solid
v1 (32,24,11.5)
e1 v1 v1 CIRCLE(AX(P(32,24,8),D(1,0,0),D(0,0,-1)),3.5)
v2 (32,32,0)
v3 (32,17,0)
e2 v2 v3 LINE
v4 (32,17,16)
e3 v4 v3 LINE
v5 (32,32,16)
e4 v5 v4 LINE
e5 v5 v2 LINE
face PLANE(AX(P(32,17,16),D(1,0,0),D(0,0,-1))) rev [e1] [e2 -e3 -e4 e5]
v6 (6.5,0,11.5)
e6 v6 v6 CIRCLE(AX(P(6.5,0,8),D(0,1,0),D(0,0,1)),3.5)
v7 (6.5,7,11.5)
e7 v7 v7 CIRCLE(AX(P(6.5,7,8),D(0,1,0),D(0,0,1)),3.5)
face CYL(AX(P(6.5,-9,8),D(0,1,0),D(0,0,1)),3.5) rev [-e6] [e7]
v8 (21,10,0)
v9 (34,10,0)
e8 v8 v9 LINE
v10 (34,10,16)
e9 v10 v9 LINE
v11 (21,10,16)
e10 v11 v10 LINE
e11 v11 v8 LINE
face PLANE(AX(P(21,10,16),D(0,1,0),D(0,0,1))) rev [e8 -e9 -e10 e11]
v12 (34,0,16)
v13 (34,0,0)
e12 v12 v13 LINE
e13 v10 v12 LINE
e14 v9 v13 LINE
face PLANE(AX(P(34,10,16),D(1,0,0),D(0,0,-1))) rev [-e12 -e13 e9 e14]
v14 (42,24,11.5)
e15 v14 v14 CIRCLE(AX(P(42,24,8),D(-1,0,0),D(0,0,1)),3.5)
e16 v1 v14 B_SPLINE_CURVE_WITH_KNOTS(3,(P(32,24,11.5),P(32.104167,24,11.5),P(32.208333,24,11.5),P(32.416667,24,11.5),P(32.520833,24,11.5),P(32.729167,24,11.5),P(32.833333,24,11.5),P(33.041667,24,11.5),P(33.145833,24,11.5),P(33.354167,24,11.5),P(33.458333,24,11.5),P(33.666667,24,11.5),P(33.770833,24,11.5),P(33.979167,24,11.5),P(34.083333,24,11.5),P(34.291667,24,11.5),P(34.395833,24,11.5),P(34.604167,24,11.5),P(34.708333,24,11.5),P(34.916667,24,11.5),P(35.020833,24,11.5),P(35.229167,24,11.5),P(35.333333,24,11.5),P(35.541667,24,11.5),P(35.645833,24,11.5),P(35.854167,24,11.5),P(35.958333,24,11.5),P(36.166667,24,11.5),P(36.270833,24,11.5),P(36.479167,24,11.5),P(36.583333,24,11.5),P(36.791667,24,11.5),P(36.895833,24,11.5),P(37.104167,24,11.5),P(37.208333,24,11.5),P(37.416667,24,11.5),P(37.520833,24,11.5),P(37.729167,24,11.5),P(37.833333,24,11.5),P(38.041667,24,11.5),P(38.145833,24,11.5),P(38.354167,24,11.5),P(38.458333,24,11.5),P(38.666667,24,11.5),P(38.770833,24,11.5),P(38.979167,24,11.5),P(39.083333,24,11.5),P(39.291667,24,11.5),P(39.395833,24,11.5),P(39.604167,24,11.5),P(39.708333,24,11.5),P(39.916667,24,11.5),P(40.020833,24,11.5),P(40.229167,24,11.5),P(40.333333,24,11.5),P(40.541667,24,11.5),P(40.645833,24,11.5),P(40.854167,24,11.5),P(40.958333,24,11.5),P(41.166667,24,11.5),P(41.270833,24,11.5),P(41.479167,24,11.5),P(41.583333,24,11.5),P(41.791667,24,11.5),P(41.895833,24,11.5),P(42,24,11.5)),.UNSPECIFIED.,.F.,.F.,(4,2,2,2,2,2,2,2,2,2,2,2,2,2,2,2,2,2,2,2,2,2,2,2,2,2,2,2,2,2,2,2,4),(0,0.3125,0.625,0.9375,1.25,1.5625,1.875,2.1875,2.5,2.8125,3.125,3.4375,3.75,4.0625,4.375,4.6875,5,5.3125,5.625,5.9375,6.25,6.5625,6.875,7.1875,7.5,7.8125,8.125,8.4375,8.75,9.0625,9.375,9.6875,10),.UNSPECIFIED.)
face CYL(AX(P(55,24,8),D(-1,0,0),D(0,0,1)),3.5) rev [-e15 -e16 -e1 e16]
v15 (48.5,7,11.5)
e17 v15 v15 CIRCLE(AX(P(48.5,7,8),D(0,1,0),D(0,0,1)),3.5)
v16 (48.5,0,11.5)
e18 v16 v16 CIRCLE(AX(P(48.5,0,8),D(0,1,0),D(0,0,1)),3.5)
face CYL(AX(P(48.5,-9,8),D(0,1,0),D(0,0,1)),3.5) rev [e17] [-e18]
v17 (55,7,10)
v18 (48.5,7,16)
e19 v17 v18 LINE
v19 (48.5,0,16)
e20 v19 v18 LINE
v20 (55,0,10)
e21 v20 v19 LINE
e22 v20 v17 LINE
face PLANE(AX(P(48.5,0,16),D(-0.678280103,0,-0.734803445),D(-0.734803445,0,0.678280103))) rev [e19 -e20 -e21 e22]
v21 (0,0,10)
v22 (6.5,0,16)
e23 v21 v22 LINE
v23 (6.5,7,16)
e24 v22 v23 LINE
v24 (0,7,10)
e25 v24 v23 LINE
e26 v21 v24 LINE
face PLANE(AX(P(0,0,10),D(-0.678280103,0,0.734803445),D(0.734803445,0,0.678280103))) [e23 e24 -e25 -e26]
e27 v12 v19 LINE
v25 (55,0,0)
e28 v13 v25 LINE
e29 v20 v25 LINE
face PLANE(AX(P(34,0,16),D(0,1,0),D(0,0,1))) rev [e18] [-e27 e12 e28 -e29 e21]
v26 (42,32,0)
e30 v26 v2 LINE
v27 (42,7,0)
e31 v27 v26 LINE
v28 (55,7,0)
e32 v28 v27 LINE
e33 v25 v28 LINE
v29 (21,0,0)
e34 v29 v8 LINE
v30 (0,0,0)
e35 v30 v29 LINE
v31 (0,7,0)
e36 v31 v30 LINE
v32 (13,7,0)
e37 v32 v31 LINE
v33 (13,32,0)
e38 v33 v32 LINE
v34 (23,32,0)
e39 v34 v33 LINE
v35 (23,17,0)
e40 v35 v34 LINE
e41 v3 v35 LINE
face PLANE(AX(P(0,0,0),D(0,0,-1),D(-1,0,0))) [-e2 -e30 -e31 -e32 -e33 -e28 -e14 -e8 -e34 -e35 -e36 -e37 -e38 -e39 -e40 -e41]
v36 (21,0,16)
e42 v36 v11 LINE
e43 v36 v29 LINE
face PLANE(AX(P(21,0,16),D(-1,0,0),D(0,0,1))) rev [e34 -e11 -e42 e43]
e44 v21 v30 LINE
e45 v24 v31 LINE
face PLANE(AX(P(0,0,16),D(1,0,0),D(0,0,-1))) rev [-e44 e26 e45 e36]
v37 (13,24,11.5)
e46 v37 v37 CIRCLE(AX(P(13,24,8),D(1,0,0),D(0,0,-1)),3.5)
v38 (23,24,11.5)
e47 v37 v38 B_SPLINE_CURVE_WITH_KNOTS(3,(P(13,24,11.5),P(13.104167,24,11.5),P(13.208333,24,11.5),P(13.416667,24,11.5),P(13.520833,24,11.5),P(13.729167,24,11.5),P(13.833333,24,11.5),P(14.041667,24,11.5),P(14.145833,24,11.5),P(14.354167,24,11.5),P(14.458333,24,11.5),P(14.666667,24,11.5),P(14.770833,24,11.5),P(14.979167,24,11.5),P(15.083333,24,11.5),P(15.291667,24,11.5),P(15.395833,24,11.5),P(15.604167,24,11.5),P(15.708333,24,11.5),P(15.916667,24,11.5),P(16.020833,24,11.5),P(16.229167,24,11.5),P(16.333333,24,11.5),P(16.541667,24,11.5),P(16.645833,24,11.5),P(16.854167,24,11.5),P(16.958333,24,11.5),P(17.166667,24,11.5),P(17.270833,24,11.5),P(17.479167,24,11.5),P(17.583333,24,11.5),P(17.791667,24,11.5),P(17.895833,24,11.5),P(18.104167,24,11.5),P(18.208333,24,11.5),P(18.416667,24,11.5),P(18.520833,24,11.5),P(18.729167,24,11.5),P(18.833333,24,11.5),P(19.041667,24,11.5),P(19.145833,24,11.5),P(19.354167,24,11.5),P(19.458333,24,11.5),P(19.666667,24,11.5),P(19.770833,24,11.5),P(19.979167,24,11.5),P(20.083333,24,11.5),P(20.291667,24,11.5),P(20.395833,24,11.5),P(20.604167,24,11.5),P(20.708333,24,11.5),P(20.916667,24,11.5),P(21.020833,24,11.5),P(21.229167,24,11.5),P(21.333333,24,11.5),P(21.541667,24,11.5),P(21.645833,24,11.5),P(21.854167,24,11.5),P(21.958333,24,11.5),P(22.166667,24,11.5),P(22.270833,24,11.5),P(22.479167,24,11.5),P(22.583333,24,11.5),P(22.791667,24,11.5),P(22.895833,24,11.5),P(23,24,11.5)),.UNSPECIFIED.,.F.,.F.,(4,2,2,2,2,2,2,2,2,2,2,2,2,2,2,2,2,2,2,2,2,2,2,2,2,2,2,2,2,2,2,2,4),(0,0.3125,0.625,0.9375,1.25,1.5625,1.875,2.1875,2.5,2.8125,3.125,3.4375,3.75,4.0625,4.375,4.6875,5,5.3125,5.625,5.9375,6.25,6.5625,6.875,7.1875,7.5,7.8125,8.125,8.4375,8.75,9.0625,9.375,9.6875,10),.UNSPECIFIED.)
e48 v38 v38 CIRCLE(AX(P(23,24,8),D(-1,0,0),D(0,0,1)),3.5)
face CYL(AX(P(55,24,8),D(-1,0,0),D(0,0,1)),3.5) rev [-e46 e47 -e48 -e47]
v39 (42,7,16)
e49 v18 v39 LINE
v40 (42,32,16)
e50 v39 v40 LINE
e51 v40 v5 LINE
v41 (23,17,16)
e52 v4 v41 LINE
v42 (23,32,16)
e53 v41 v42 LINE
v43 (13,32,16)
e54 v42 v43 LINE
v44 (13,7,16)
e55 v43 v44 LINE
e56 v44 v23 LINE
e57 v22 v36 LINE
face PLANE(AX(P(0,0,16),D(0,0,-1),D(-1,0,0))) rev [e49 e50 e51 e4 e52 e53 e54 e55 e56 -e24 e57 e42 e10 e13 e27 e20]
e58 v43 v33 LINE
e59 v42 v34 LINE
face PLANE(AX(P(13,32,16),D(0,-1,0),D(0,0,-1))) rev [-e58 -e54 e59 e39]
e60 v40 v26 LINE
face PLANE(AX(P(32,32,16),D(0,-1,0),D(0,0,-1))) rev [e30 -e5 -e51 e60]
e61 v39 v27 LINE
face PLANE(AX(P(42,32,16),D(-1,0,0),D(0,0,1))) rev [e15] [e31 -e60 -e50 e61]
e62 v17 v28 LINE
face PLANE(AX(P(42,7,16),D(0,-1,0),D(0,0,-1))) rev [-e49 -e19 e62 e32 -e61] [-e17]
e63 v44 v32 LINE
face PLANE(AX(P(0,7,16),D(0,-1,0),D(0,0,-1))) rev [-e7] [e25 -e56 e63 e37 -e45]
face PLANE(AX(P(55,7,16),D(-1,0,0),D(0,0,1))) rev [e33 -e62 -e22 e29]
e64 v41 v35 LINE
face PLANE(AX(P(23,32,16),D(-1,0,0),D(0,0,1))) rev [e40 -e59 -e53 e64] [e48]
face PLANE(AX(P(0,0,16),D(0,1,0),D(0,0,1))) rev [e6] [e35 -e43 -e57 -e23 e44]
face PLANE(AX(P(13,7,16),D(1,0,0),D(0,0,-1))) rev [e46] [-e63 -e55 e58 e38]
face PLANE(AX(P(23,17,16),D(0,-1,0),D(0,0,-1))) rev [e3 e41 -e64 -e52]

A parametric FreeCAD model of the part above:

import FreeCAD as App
import Part
import Sketcher

doc = App.newDocument("Part")
body = doc.addObject("PartDesign::Body", "Body")

sketch1 = body.newObject("Sketcher::SketchObject", "Sketch")
sketch1.AttachmentSupport = (doc.getObject("XY_Plane"), [""])
sketch1.MapMode = "FlatFace"
sketch1.addGeometry([
    Part.LineSegment(App.Vector(0, 0, 0), App.Vector(21, 0, 0)),
    Part.LineSegment(App.Vector(21, 0, 0), App.Vector(21, 10, 0)),
    Part.LineSegment(App.Vector(21, 10, 0), App.Vector(34, 10, 0)),
    Part.LineSegment(App.Vector(34, 10, 0), App.Vector(34, 0, 0)),
    Part.LineSegment(App.Vector(34, 0, 0), App.Vector(55, 0, 0)),
    Part.LineSegment(App.Vector(55, 0, 0), App.Vector(55, 7, 0)),
    Part.LineSegment(App.Vector(55, 7, 0), App.Vector(42, 7, 0)),
    Part.LineSegment(App.Vector(42, 7, 0), App.Vector(42, 32, 0)),
    Part.LineSegment(App.Vector(42, 32, 0), App.Vector(32, 32, 0)),
    Part.LineSegment(App.Vector(32, 32, 0), App.Vector(32, 17, 0)),
    Part.LineSegment(App.Vector(32, 17, 0), App.Vector(23, 17, 0)),
    Part.LineSegment(App.Vector(23, 17, 0), App.Vector(23, 32, 0)),
    Part.LineSegment(App.Vector(23, 32, 0), App.Vector(13, 32, 0)),
    Part.LineSegment(App.Vector(13, 32, 0), App.Vector(13, 7, 0)),
    Part.LineSegment(App.Vector(13, 7, 0), App.Vector(0, 7, 0)),
    Part.LineSegment(App.Vector(0, 7, 0), App.Vector(0, 0, 0)),
], False)
sketch1.addConstraint([
    Sketcher.Constraint("Coincident", 0, 2, 1, 1),
    Sketcher.Constraint("Coincident", 1, 2, 2, 1),
    Sketcher.Constraint("Coincident", 2, 2, 3, 1),
    Sketcher.Constraint("Coincident", 3, 2, 4, 1),
    Sketcher.Constraint("Coincident", 4, 2, 5, 1),
    Sketcher.Constraint("Coincident", 5, 2, 6, 1),
    Sketcher.Constraint("Coincident", 6, 2, 7, 1),
    Sketcher.Constraint("Coincident", 7, 2, 8, 1),
    Sketcher.Constraint("Coincident", 8, 2, 9, 1),
    Sketcher.Constraint("Coincident", 9, 2, 10, 1),
    Sketcher.Constraint("Coincident", 10, 2, 11, 1),
    Sketcher.Constraint("Coincident", 11, 2, 12, 1),
    Sketcher.Constraint("Coincident", 12, 2, 13, 1),
    Sketcher.Constraint("Coincident", 13, 2, 14, 1),
    Sketcher.Constraint("Coincident", 14, 2, 15, 1),
    Sketcher.Constraint("Coincident", 15, 2, 0, 1),
    Sketcher.Constraint("Horizontal", 0),
    Sketcher.Constraint("Vertical", 1),
    Sketcher.Constraint("Horizontal", 2),
    Sketcher.Constraint("Vertical", 3),
    Sketcher.Constraint("Horizontal", 4),
    Sketcher.Constraint("Vertical", 5),
    Sketcher.Constraint("Horizontal", 6),
    Sketcher.Constraint("Vertical", 7),
    Sketcher.Constraint("Horizontal", 8),
    Sketcher.Constraint("Vertical", 9),
    Sketcher.Constraint("Horizontal", 10),
    Sketcher.Constraint("Vertical", 11),
    Sketcher.Constraint("Horizontal", 12),
    Sketcher.Constraint("Vertical", 13),
    Sketcher.Constraint("Horizontal", 14),
    Sketcher.Constraint("Vertical", 15),
    Sketcher.Constraint("Coincident", 15, 2, -1, 1),
    Sketcher.Constraint("PointOnObject", 3, 2, -1),
    Sketcher.Constraint("Horizontal", 8, 2, 11, 2),
    Sketcher.Constraint("Horizontal", 6, 2, 13, 2),
    Sketcher.Constraint("Equal", 0, 4),
    Sketcher.Constraint("Equal", 2, 6),
    Sketcher.Constraint("Equal", 8, 12),
    Sketcher.Constraint("Equal", 6, 14),
    Sketcher.Constraint("Equal", 12, 1),
    Sketcher.Constraint("DistanceX", 0, 1, 0, 2, 21.0),
    Sketcher.Constraint("DistanceX", 2, 1, 2, 2, 13.0),
    Sketcher.Constraint("DistanceX", 8, 2, 8, 1, 10.0),
    Sketcher.Constraint("DistanceY", 5, 1, 5, 2, 7.0),
    Sketcher.Constraint("DistanceY", 7, 1, 7, 2, 25.0),
    Sketcher.Constraint("DistanceY", 9, 2, 9, 1, 15.0),
])
pad1 = body.newObject("PartDesign::Pad", "Pad")
pad1.Profile = sketch1
pad1.Length = 16

sketch2 = body.newObject("Sketcher::SketchObject", "Sketch001")
sketch2.AttachmentSupport = (doc.getObject("XZ_Plane"), [""])
sketch2.MapMode = "FlatFace"
sketch2.AttachmentOffset = App.Placement(App.Vector(0, 0, -7), App.Rotation())
sketch2.addGeometry(Part.Circle(App.Vector(6.5, 8, 0), App.Vector(0, 0, 1), 3.5), False)
sketch2.addConstraint([
    Sketcher.Constraint("Diameter", 0, 7.0),
    Sketcher.Constraint("DistanceY", -1, 1, 0, 3, 8.0),
    Sketcher.Constraint("DistanceX", -1, 1, 0, 3, 6.5),
])
pocket1 = body.newObject("PartDesign::Pocket", "Pocket")
pocket1.Profile = sketch2
pocket1.Length = 16
pocket1.Reversed = True

sketch3 = body.newObject("Sketcher::SketchObject", "Sketch002")
sketch3.AttachmentSupport = (doc.getObject("XZ_Plane"), [""])
sketch3.MapMode = "FlatFace"
sketch3.AttachmentOffset = App.Placement(App.Vector(0, 0, -7), App.Rotation())
sketch3.addGeometry(Part.Circle(App.Vector(48.5, 8, 0), App.Vector(0, 0, 1), 3.5), False)
sketch3.addConstraint([
    Sketcher.Constraint("Diameter", 0, 7.0),
    Sketcher.Constraint("DistanceY", -1, 1, 0, 3, 8.0),
    Sketcher.Constraint("DistanceX", -1, 1, 0, 3, 48.5),
])
pocket2 = body.newObject("PartDesign::Pocket", "Pocket001")
pocket2.Profile = sketch3
pocket2.Length = 16
pocket2.Reversed = True

sketch4 = body.newObject("Sketcher::SketchObject", "Sketch003")
sketch4.AttachmentSupport = (doc.getObject("YZ_Plane"), [""])
sketch4.MapMode = "FlatFace"
sketch4.AttachmentOffset = App.Placement(App.Vector(0, 0, 13), App.Rotation())
sketch4.addGeometry(Part.Circle(App.Vector(24, 8, 0), App.Vector(0, 0, 1), 3.5), False)
sketch4.addConstraint([
    Sketcher.Constraint("Diameter", 0, 7.0),
    Sketcher.Constraint("DistanceX", -1, 1, 0, 3, 24.0),
    Sketcher.Constraint("DistanceY", -1, 1, 0, 3, 8.0),
])
pocket3 = body.newObject("PartDesign::Pocket", "Pocket002")
pocket3.Profile = sketch4
pocket3.Type = "ThroughAll"
pocket3.Midplane = True

sketch5 = body.newObject("Sketcher::SketchObject", "Sketch004")
sketch5.AttachmentSupport = (doc.getObject("XZ_Plane"), [""])
sketch5.MapMode = "FlatFace"
sketch5.AttachmentOffset = App.Placement(App.Vector(0, 0, -7), App.Rotation())
sketch5.addGeometry([
    Part.LineSegment(App.Vector(0, 16, 0), App.Vector(6.5, 16, 0)),
    Part.LineSegment(App.Vector(6.5, 16, 0), App.Vector(0, 10, 0)),
    Part.LineSegment(App.Vector(0, 10, 0), App.Vector(0, 16, 0)),
], False)
sketch5.addConstraint([
    Sketcher.Constraint("Coincident", 0, 2, 1, 1),
    Sketcher.Constraint("Coincident", 1, 2, 2, 1),
    Sketcher.Constraint("Coincident", 2, 2, 0, 1),
    Sketcher.Constraint("Horizontal", 0),
    Sketcher.Constraint("Vertical", 2),
    Sketcher.Constraint("PointOnObject", 1, 2, -2),
    Sketcher.Constraint("DistanceY", 2, 1, 2, 2, 6.0),
    Sketcher.Constraint("DistanceX", 0, 1, 0, 2, 6.5),
    Sketcher.Constraint("DistanceY", -1, 1, 0, 2, 16.0),
])
pocket4 = body.newObject("PartDesign::Pocket", "Pocket003")
pocket4.Profile = sketch5
pocket4.Type = "ThroughAll"
pocket4.Midplane = True

sketch6 = body.newObject("Sketcher::SketchObject", "Sketch005")
sketch6.AttachmentSupport = (doc.getObject("XZ_Plane"), [""])
sketch6.MapMode = "FlatFace"
sketch6.AttachmentOffset = App.Placement(App.Vector(0, 0, -7), App.Rotation())
sketch6.addGeometry([
    Part.LineSegment(App.Vector(55, 16, 0), App.Vector(55, 10, 0)),
    Part.LineSegment(App.Vector(55, 10, 0), App.Vector(48.5, 16, 0)),
    Part.LineSegment(App.Vector(48.5, 16, 0), App.Vector(55, 16, 0)),
], False)
sketch6.addConstraint([
    Sketcher.Constraint("Coincident", 0, 2, 1, 1),
    Sketcher.Constraint("Coincident", 1, 2, 2, 1),
    Sketcher.Constraint("Coincident", 2, 2, 0, 1),
    Sketcher.Constraint("Vertical", 0),
    Sketcher.Constraint("Horizontal", 2),
    Sketcher.Constraint("DistanceY", 0, 2, 0, 1, 6.0),
    Sketcher.Constraint("DistanceX", 2, 1, 2, 2, 6.5),
    Sketcher.Constraint("DistanceX", -1, 1, 0, 2, 55.0),
    Sketcher.Constraint("DistanceY", -1, 1, 0, 2, 10.0),
])
pocket5 = body.newObject("PartDesign::Pocket", "Pocket004")
pocket5.Profile = sketch6
pocket5.Type = "ThroughAll"
pocket5.Midplane = True

doc.recompute()
